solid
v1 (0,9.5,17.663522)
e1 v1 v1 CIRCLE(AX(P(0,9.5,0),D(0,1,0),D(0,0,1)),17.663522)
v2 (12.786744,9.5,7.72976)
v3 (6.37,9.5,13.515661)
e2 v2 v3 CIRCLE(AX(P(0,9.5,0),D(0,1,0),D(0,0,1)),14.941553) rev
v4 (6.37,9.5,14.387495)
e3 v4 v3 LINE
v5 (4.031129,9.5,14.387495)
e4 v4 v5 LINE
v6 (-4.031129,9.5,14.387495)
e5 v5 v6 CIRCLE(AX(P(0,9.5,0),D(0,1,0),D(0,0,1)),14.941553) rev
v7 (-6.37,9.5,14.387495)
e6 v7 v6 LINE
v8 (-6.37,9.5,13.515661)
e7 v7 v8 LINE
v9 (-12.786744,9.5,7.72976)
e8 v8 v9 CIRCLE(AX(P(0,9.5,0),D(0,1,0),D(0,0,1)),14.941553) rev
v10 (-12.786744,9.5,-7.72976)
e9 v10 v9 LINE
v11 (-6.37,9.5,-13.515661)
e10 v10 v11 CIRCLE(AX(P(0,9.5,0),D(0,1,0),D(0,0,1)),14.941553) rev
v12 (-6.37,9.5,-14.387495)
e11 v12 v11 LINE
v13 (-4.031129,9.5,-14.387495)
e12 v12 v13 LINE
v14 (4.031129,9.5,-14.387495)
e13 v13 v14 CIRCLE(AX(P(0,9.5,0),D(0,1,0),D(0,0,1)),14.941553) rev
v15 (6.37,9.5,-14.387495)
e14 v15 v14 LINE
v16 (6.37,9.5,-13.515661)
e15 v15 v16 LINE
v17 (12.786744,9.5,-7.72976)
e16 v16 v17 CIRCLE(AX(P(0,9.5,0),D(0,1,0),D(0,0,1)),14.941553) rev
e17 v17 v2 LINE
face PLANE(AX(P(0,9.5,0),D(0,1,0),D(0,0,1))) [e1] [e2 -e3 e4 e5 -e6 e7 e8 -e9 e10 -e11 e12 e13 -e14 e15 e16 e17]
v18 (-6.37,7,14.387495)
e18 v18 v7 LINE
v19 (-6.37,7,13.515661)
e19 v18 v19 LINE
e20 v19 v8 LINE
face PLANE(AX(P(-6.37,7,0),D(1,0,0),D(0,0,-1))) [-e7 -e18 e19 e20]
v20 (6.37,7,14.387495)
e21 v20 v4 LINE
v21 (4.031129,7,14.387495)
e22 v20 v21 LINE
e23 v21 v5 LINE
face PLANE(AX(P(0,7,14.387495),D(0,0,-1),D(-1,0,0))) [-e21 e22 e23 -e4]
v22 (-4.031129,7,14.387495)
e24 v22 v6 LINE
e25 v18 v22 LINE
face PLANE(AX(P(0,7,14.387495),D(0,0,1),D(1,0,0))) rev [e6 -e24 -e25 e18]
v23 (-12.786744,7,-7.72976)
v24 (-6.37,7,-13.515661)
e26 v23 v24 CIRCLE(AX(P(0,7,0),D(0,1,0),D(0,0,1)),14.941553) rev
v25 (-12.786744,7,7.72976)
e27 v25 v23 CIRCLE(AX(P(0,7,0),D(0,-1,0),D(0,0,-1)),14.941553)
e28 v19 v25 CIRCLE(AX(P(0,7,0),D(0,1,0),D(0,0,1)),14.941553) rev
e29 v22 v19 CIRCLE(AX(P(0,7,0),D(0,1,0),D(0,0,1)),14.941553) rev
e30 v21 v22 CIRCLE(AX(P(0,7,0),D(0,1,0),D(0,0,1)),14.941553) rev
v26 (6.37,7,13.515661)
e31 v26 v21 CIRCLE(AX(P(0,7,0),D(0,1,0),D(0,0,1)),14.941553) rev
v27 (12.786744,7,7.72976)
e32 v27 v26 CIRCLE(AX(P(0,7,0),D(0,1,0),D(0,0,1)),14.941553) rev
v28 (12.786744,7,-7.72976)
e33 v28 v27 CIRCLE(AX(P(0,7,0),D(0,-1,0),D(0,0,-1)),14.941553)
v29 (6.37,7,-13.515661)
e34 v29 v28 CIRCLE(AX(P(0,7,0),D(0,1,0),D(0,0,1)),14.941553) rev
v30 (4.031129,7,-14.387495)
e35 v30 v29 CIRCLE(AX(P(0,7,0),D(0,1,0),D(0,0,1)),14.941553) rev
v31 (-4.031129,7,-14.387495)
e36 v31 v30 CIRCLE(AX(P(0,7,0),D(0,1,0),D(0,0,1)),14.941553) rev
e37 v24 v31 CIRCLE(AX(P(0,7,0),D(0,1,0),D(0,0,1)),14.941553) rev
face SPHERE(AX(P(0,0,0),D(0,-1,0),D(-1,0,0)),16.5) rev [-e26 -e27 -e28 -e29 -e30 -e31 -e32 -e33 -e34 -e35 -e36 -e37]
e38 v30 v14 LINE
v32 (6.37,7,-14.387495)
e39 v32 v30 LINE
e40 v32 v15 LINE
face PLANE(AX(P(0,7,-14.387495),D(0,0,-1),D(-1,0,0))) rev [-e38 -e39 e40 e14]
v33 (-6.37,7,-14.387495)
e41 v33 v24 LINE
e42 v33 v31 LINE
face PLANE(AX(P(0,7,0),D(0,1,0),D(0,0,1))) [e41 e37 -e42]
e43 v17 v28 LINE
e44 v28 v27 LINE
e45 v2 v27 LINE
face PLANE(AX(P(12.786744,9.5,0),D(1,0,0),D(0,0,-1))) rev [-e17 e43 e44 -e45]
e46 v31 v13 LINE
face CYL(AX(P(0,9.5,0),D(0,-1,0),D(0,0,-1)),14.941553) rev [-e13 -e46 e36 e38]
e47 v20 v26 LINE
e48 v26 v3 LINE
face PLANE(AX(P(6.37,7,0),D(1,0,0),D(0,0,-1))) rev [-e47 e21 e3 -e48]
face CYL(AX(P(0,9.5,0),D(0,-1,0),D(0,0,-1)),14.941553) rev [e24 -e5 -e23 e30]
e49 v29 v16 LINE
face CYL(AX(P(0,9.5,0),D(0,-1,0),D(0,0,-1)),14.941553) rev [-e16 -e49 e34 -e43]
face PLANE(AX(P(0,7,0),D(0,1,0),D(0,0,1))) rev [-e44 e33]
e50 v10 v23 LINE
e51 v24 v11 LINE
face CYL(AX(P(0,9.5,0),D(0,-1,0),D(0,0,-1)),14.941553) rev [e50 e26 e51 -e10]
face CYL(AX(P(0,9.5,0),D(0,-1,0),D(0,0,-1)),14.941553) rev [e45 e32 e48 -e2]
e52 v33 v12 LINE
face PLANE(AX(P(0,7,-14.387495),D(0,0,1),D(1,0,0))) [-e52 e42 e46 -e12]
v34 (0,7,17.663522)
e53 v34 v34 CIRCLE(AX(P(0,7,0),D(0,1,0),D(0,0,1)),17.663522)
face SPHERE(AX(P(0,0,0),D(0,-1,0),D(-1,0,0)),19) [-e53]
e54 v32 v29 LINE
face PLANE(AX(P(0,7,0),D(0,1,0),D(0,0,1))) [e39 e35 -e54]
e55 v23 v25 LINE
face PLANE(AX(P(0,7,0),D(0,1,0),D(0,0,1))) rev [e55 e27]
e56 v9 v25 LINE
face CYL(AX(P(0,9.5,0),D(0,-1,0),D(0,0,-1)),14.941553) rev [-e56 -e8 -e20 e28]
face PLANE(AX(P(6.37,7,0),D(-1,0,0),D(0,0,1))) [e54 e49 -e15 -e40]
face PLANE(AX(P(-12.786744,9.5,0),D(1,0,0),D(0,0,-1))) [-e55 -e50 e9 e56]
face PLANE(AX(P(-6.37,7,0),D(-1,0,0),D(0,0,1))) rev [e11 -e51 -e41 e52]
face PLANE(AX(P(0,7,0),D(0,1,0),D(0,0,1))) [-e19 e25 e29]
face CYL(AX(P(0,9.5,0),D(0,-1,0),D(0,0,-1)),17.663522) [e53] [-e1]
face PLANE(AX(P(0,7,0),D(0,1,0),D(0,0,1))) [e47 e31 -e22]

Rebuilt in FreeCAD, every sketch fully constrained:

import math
import FreeCAD as App
import Part
import Sketcher

V = App.Vector
Q = App.Units.Quantity

doc = App.newDocument("Part")
params = doc.addObject("Spreadsheet::Sheet", "Params")
for row, (alias, value) in enumerate([
    ("sketch1_radius", "19 mm"),
    ("sketch1_radius2", "16.5 mm"),
    ("revolution_angle", "360 deg"),
    ("pad1_length", "2.5 mm"),
    ("pocket1_length", "2.5 mm"),
], start=1):
    params.set(f"A{row}", alias)
    params.set(f"B{row}", "=" + value)
    params.setAlias(f"B{row}", alias)

body = doc.addObject("PartDesign::Body", "Body")

# Sketch on XY plane
sketch1 = body.newObject("Sketcher::SketchObject", "Sketch")
sketch1.AttachmentSupport = (doc.getObject("XY_Plane"), [""])
sketch1.MapMode = "FlatFace"
sketch1.addGeometry(Part.ArcOfCircle(Part.Circle(V(0, 0, 0), V(0, 0, 1), 16.5), math.radians(155), math.radians(270)), False)
sketch1.addGeometry(Part.LineSegment(V(-14.9, 7, 0), V(-17.7, 7, 0)), False)
sketch1.addGeometry(Part.ArcOfCircle(Part.Circle(V(0, 0, 0), V(0, 0, 1), 19), math.radians(158), math.radians(270)), False)
sketch1.addGeometry(Part.LineSegment(V(0, -19, 0), V(0, -16.5, 0)), False)
sketch1.addConstraint(Sketcher.Constraint("Coincident", 0, 1, 1, 1))
sketch1.addConstraint(Sketcher.Constraint("Coincident", 1, 2, 2, 1))
sketch1.addConstraint(Sketcher.Constraint("Coincident", 2, 2, 3, 1))
sketch1.addConstraint(Sketcher.Constraint("Coincident", 3, 2, 0, 2))
sketch1.addConstraint(Sketcher.Constraint("Horizontal", 1))
sketch1.addConstraint(Sketcher.Constraint("Vertical", 3))
sketch1.addConstraint(Sketcher.Constraint("Coincident", 0, 3, -1, 1))
sketch1.addConstraint(Sketcher.Constraint("Coincident", 2, 3, -1, 1))
sketch1.addConstraint(Sketcher.Constraint("PointOnObject", 2, 2, -2))
sketch1.addConstraint(Sketcher.Constraint("Radius", 2, Q("19 mm")))
sketch1.addConstraint(Sketcher.Constraint("Radius", 0, Q("16.5 mm")))
sketch1.addConstraint(Sketcher.Constraint("DistanceY", -1, 1, 0, 1, Q("7 mm")))
sketch1.setExpression("Constraints[9]", "Params.sketch1_radius")
sketch1.setExpression("Constraints[10]", "Params.sketch1_radius2")
revolution = body.newObject("PartDesign::Revolution", "Revolution")
revolution.Profile = sketch1
revolution.ReferenceAxis = (sketch1, ["V_Axis"])
revolution.setExpression("Angle", "Params.revolution_angle")

# Sketch on XZ plane
sketch2 = body.newObject("Sketcher::SketchObject", "Sketch001")
sketch2.AttachmentSupport = (doc.getObject("XZ_Plane"), [""])
sketch2.MapMode = "FlatFace"
sketch2.AttachmentOffset = App.Placement(V(0, 0, -7), App.Rotation())
sketch2.addGeometry(Part.ArcOfCircle(Part.Circle(V(0, 0, 0), V(0, 0, 1), 18), math.radians(-44), math.radians(0)), False)
sketch2.addGeometry(Part.ArcOfCircle(Part.Circle(V(0, 0, 0), V(0, 0, 1), 18), math.radians(-136), math.radians(-44)), False)
sketch2.addGeometry(Part.ArcOfCircle(Part.Circle(V(0, 0, 0), V(0, 0, 1), 18), math.radians(136), math.radians(224)), False)
sketch2.addGeometry(Part.ArcOfCircle(Part.Circle(V(0, 0, 0), V(0, 0, 1), 18), math.radians(44), math.radians(136)), False)
sketch2.addGeometry(Part.ArcOfCircle(Part.Circle(V(0, 0, 0), V(0, 0, 1), 18), math.radians(0), math.radians(44)), False)
sketch2.addGeometry(Part.ArcOfCircle(Part.Circle(V(0, 0, 0), V(0, 0, 1), 15), math.radians(125), math.radians(149)), False)
sketch2.addGeometry(Part.LineSegment(V(-13, 8, 0), V(-13, -8, 0)), False)
sketch2.addGeometry(Part.ArcOfCircle(Part.Circle(V(0, 0, 0), V(0, 0, 1), 15), math.radians(-149), math.radians(-125)), False)
sketch2.addGeometry(Part.ArcOfCircle(Part.Circle(V(0, 0, 0), V(0, 0, 1), 15), math.radians(-125), math.radians(-55)), False)
sketch2.addGeometry(Part.ArcOfCircle(Part.Circle(V(0, 0, 0), V(0, 0, 1), 15), math.radians(-55), math.radians(-31)), False)
sketch2.addGeometry(Part.LineSegment(V(13, -8, 0), V(13, 8, 0)), False)
sketch2.addGeometry(Part.ArcOfCircle(Part.Circle(V(0, 0, 0), V(0, 0, 1), 15), math.radians(31), math.radians(55)), False)
sketch2.addGeometry(Part.ArcOfCircle(Part.Circle(V(0, 0, 0), V(0, 0, 1), 15), math.radians(55), math.radians(125)), False)
sketch2.addConstraint(Sketcher.Constraint("Tangent", 0, 1, 1, 2))
sketch2.addConstraint(Sketcher.Constraint("Tangent", 1, 1, 2, 2))
sketch2.addConstraint(Sketcher.Constraint("Tangent", 2, 1, 3, 2))
sketch2.addConstraint(Sketcher.Constraint("Tangent", 3, 1, 4, 2))
sketch2.addConstraint(Sketcher.Constraint("Tangent", 4, 1, 0, 2))
sketch2.addConstraint(Sketcher.Constraint("Coincident", 5, 2, 6, 1))
sketch2.addConstraint(Sketcher.Constraint("Coincident", 6, 2, 7, 1))
sketch2.addConstraint(Sketcher.Constraint("Tangent", 7, 2, 8, 1))
sketch2.addConstraint(Sketcher.Constraint("Tangent", 8, 2, 9, 1))
sketch2.addConstraint(Sketcher.Constraint("Coincident", 9, 2, 10, 1))
sketch2.addConstraint(Sketcher.Constraint("Coincident", 10, 2, 11, 1))
sketch2.addConstraint(Sketcher.Constraint("Tangent", 11, 2, 12, 1))
sketch2.addConstraint(Sketcher.Constraint("Tangent", 12, 2, 5, 1))
sketch2.addConstraint(Sketcher.Constraint("Vertical", 6))
sketch2.addConstraint(Sketcher.Constraint("Vertical", 10))
sketch2.addConstraint(Sketcher.Constraint("Coincident", 0, 3, -1, 1))
sketch2.addConstraint(Sketcher.Constraint("Coincident", 2, 3, -1, 1))
sketch2.addConstraint(Sketcher.Constraint("Coincident", 5, 3, -1, 1))
sketch2.addConstraint(Sketcher.Constraint("Coincident", 7, 3, -1, 1))
sketch2.addConstraint(Sketcher.Constraint("Coincident", 9, 3, -1, 1))
sketch2.addConstraint(Sketcher.Constraint("Coincident", 11, 3, -1, 1))
sketch2.addConstraint(Sketcher.Constraint("Equal", 5, 7))
sketch2.addConstraint(Sketcher.Constraint("PointOnObject", 4, 1, -1))
sketch2.addConstraint(Sketcher.Constraint("Horizontal", 0, 1, 1, 1))
sketch2.addConstraint(Sketcher.Constraint("Horizontal", 2, 1, 3, 1))
sketch2.addConstraint(Sketcher.Constraint("Horizontal", 1, 1, 7, 2))
sketch2.addConstraint(Sketcher.Constraint("Horizontal", 7, 2, 8, 2))
sketch2.addConstraint(Sketcher.Constraint("Horizontal", 6, 2, 9, 2))
sketch2.addConstraint(Sketcher.Constraint("Horizontal", 3, 1, 11, 2))
sketch2.addConstraint(Sketcher.Constraint("Horizontal", 11, 2, 12, 2))
sketch2.addConstraint(Sketcher.Constraint("Vertical", 1, 1, 2, 1))
sketch2.addConstraint(Sketcher.Constraint("Vertical", 2, 1, 5, 2))
sketch2.addConstraint(Sketcher.Constraint("Radius", 0, Q("17.663522 mm")))
sketch2.addConstraint(Sketcher.Constraint("Radius", 5, Q("14.941553 mm")))
sketch2.addConstraint(Sketcher.Constraint("DistanceY", 6, 2, 6, 1, Q("15.459519 mm")))
pad1 = body.newObject("PartDesign::Pad", "Pad")
pad1.Profile = sketch2
pad1.setExpression("Length", "Params.pad1_length")
pad1.Reversed = True

# Sketch on XZ plane
sketch3 = body.newObject("Sketcher::SketchObject", "Sketch002")
sketch3.AttachmentSupport = (doc.getObject("XZ_Plane"), [""])
sketch3.MapMode = "FlatFace"
sketch3.AttachmentOffset = App.Placement(V(0, 0, -9.5), App.Rotation())
sketch3.addGeometry(Part.LineSegment(V(-6.4, -14.4, 0), V(-6.4, -13.5, 0)), False)
sketch3.addGeometry(Part.ArcOfCircle(Part.Circle(V(0, 0, 0), V(0, 0, 1), 14.9), math.radians(-115.23), math.radians(-105.65)), False)
sketch3.addGeometry(Part.LineSegment(V(-4, -14.4, 0), V(-6.4, -14.4, 0)), False)
sketch3.addGeometry(Part.LineSegment(V(6.4, -14.4, 0), V(4, -14.4, 0)), False)
sketch3.addGeometry(Part.ArcOfCircle(Part.Circle(V(0, 0, 0), V(0, 0, 1), 14.9), math.radians(-74.35), math.radians(-64.77)), False)
sketch3.addGeometry(Part.LineSegment(V(6.4, -13.5, 0), V(6.4, -14.4, 0)), False)
sketch3.addGeometry(Part.ArcOfCircle(Part.Circle(V(0, 0, 0), V(0, 0, 1), 14.9), math.radians(64.77), math.radians(74.35)), False)
sketch3.addGeometry(Part.LineSegment(V(4, 14.4, 0), V(6.4, 14.4, 0)), False)
sketch3.addGeometry(Part.LineSegment(V(6.4, 14.4, 0), V(6.4, 13.5, 0)), False)
sketch3.addGeometry(Part.LineSegment(V(-6.4, 13.5, 0), V(-6.4, 14.4, 0)), False)
sketch3.addGeometry(Part.LineSegment(V(-6.4, 14.4, 0), V(-4, 14.4, 0)), False)
sketch3.addGeometry(Part.ArcOfCircle(Part.Circle(V(0, 0, 0), V(0, 0, 1), 14.9), math.radians(105.65), math.radians(115.23)), False)
sketch3.addConstraint(Sketcher.Constraint("Coincident", 0, 2, 1, 1))
sketch3.addConstraint(Sketcher.Constraint("Coincident", 1, 2, 2, 1))
sketch3.addConstraint(Sketcher.Constraint("Coincident", 2, 2, 0, 1))
sketch3.addConstraint(Sketcher.Constraint("Coincident", 3, 2, 4, 1))
sketch3.addConstraint(Sketcher.Constraint("Coincident", 4, 2, 5, 1))
sketch3.addConstraint(Sketcher.Constraint("Coincident", 5, 2, 3, 1))
sketch3.addConstraint(Sketcher.Constraint("Coincident", 6, 2, 7, 1))
sketch3.addConstraint(Sketcher.Constraint("Coincident", 7, 2, 8, 1))
sketch3.addConstraint(Sketcher.Constraint("Coincident", 8, 2, 6, 1))
sketch3.addConstraint(Sketcher.Constraint("Coincident", 9, 2, 10, 1))
sketch3.addConstraint(Sketcher.Constraint("Coincident", 10, 2, 11, 1))
sketch3.addConstraint(Sketcher.Constraint("Coincident", 11, 2, 9, 1))
sketch3.addConstraint(Sketcher.Constraint("Vertical", 0))
sketch3.addConstraint(Sketcher.Constraint("Horizontal", 2))
sketch3.addConstraint(Sketcher.Constraint("Horizontal", 3))
sketch3.addConstraint(Sketcher.Constraint("Vertical", 5))
sketch3.addConstraint(Sketcher.Constraint("Horizontal", 7))
sketch3.addConstraint(Sketcher.Constraint("Vertical", 8))
sketch3.addConstraint(Sketcher.Constraint("Vertical", 9))
sketch3.addConstraint(Sketcher.Constraint("Horizontal", 10))
sketch3.addConstraint(Sketcher.Constraint("Coincident", 1, 3, -1, 1))
sketch3.addConstraint(Sketcher.Constraint("Coincident", 4, 3, -1, 1))
sketch3.addConstraint(Sketcher.Constraint("Coincident", 6, 3, -1, 1))
sketch3.addConstraint(Sketcher.Constraint("Coincident", 11, 3, -1, 1))
sketch3.addConstraint(Sketcher.Constraint("Equal", 1, 4))
sketch3.addConstraint(Sketcher.Constraint("Equal", 4, 6))
sketch3.addConstraint(Sketcher.Constraint("Equal", 6, 11))
sketch3.addConstraint(Sketcher.Constraint("Symmetric", 2, 2, 7, 2, -1, 1))
sketch3.addConstraint(Sketcher.Constraint("Symmetric", 5, 2, 9, 2, -1, 1))
sketch3.addConstraint(Sketcher.Constraint("Symmetric", 2, 2, 5, 2, -2))
sketch3.addConstraint(Sketcher.Constraint("DistanceX", 0, 2, -1, 1, Q("6.37 mm")))
sketch3.addConstraint(Sketcher.Constraint("Radius", 1, Q("14.941553 mm")))
sketch3.addConstraint(Sketcher.Constraint("DistanceX", 2, 2, 2, 1, Q("2.338871 mm")))
pocket1 = body.newObject("PartDesign::Pocket", "Pocket")
pocket1.Profile = sketch3
pocket1.setExpression("Length", "Params.pocket1_length")
pocket1.Reversed = True

doc.recompute()
